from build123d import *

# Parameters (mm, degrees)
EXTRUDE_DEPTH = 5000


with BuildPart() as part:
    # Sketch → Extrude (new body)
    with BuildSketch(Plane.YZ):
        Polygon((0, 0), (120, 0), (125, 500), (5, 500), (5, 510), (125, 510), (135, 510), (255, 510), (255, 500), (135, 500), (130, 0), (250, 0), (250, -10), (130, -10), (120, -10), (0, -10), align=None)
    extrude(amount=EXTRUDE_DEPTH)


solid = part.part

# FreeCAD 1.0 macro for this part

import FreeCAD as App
import Part
import Sketcher

V = App.Vector
Q = App.Units.Quantity

doc = App.newDocument("Part")
body = doc.addObject("PartDesign::Body", "Body")

sketch1 = body.newObject("Sketcher::SketchObject", "Sketch")
sketch1.AttachmentSupport = (doc.getObject("YZ_Plane"), [""])
sketch1.MapMode = "FlatFace"
sketch1.addGeometry([
    Part.LineSegment(V(120, 0, 0), V(0, 0, 0)),
    Part.LineSegment(V(0, 0, 0), V(0, -10, 0)),
    Part.LineSegment(V(0, -10, 0), V(250, -10, 0)),
    Part.LineSegment(V(250, -10, 0), V(250, 0, 0)),
    Part.LineSegment(V(250, 0, 0), V(130, 0, 0)),
    Part.LineSegment(V(130, 0, 0), V(135, 500, 0)),
    Part.LineSegment(V(135, 500, 0), V(255, 500, 0)),
    Part.LineSegment(V(255, 500, 0), V(255, 510, 0)),
    Part.LineSegment(V(255, 510, 0), V(5, 510, 0)),
    Part.LineSegment(V(5, 510, 0), V(5, 500, 0)),
    Part.LineSegment(V(5, 500, 0), V(125, 500, 0)),
    Part.LineSegment(V(125, 500, 0), V(120, 0, 0)),
], False)
sketch1.addConstraint([
    Sketcher.Constraint("Coincident", 0, 2, 1, 1),
    Sketcher.Constraint("Coincident", 1, 2, 2, 1),
    Sketcher.Constraint("Coincident", 2, 2, 3, 1),
    Sketcher.Constraint("Coincident", 3, 2, 4, 1),
    Sketcher.Constraint("Coincident", 4, 2, 5, 1),
    Sketcher.Constraint("Coincident", 5, 2, 6, 1),
    Sketcher.Constraint("Coincident", 6, 2, 7, 1),
    Sketcher.Constraint("Coincident", 7, 2, 8, 1),
    Sketcher.Constraint("Coincident", 8, 2, 9, 1),
    Sketcher.Constraint("Coincident", 9, 2, 10, 1),
    Sketcher.Constraint("Coincident", 10, 2, 11, 1),
    Sketcher.Constraint("Coincident", 11, 2, 0, 1),
    Sketcher.Constraint("Horizontal", 0),
    Sketcher.Constraint("Vertical", 1),
    Sketcher.Constraint("Horizontal", 2),
    Sketcher.Constraint("Vertical", 3),
    Sketcher.Constraint("Horizontal", 4),
    Sketcher.Constraint("Horizontal", 6),
    Sketcher.Constraint("Vertical", 7),
    Sketcher.Constraint("Horizontal", 8),
    Sketcher.Constraint("Vertical", 9),
    Sketcher.Constraint("Horizontal", 10),
    Sketcher.Constraint("Coincident", 0, 2, -1, 1),
    Sketcher.Constraint("PointOnObject", 3, 2, -1),
    Sketcher.Constraint("Parallel", 5, 11),
    Sketcher.Constraint("Horizontal", 6, 2, 9, 2),
    Sketcher.Constraint("Equal", 0, 4),
    Sketcher.Constraint("Equal", 4, 6),
    Sketcher.Constraint("Equal", 2, 8),
    Sketcher.Constraint("Equal", 3, 7),
    Sketcher.Constraint("DistanceX", 0, 2, 0, 1, Q("120 mm")),
    Sketcher.Constraint("DistanceX", 2, 1, 2, 2, Q("250 mm")),
    Sketcher.Constraint("DistanceY", 1, 2, 1, 1, Q("10 mm")),
    Sketcher.Constraint("DistanceX", -1, 1, 5, 2, Q("135 mm")),
    Sketcher.Constraint("DistanceY", -1, 1, 5, 2, Q("500 mm")),
])
pad1 = body.newObject("PartDesign::Pad", "Pad")
pad1.Profile = sketch1
pad1.Length = 5000

doc.recompute()
